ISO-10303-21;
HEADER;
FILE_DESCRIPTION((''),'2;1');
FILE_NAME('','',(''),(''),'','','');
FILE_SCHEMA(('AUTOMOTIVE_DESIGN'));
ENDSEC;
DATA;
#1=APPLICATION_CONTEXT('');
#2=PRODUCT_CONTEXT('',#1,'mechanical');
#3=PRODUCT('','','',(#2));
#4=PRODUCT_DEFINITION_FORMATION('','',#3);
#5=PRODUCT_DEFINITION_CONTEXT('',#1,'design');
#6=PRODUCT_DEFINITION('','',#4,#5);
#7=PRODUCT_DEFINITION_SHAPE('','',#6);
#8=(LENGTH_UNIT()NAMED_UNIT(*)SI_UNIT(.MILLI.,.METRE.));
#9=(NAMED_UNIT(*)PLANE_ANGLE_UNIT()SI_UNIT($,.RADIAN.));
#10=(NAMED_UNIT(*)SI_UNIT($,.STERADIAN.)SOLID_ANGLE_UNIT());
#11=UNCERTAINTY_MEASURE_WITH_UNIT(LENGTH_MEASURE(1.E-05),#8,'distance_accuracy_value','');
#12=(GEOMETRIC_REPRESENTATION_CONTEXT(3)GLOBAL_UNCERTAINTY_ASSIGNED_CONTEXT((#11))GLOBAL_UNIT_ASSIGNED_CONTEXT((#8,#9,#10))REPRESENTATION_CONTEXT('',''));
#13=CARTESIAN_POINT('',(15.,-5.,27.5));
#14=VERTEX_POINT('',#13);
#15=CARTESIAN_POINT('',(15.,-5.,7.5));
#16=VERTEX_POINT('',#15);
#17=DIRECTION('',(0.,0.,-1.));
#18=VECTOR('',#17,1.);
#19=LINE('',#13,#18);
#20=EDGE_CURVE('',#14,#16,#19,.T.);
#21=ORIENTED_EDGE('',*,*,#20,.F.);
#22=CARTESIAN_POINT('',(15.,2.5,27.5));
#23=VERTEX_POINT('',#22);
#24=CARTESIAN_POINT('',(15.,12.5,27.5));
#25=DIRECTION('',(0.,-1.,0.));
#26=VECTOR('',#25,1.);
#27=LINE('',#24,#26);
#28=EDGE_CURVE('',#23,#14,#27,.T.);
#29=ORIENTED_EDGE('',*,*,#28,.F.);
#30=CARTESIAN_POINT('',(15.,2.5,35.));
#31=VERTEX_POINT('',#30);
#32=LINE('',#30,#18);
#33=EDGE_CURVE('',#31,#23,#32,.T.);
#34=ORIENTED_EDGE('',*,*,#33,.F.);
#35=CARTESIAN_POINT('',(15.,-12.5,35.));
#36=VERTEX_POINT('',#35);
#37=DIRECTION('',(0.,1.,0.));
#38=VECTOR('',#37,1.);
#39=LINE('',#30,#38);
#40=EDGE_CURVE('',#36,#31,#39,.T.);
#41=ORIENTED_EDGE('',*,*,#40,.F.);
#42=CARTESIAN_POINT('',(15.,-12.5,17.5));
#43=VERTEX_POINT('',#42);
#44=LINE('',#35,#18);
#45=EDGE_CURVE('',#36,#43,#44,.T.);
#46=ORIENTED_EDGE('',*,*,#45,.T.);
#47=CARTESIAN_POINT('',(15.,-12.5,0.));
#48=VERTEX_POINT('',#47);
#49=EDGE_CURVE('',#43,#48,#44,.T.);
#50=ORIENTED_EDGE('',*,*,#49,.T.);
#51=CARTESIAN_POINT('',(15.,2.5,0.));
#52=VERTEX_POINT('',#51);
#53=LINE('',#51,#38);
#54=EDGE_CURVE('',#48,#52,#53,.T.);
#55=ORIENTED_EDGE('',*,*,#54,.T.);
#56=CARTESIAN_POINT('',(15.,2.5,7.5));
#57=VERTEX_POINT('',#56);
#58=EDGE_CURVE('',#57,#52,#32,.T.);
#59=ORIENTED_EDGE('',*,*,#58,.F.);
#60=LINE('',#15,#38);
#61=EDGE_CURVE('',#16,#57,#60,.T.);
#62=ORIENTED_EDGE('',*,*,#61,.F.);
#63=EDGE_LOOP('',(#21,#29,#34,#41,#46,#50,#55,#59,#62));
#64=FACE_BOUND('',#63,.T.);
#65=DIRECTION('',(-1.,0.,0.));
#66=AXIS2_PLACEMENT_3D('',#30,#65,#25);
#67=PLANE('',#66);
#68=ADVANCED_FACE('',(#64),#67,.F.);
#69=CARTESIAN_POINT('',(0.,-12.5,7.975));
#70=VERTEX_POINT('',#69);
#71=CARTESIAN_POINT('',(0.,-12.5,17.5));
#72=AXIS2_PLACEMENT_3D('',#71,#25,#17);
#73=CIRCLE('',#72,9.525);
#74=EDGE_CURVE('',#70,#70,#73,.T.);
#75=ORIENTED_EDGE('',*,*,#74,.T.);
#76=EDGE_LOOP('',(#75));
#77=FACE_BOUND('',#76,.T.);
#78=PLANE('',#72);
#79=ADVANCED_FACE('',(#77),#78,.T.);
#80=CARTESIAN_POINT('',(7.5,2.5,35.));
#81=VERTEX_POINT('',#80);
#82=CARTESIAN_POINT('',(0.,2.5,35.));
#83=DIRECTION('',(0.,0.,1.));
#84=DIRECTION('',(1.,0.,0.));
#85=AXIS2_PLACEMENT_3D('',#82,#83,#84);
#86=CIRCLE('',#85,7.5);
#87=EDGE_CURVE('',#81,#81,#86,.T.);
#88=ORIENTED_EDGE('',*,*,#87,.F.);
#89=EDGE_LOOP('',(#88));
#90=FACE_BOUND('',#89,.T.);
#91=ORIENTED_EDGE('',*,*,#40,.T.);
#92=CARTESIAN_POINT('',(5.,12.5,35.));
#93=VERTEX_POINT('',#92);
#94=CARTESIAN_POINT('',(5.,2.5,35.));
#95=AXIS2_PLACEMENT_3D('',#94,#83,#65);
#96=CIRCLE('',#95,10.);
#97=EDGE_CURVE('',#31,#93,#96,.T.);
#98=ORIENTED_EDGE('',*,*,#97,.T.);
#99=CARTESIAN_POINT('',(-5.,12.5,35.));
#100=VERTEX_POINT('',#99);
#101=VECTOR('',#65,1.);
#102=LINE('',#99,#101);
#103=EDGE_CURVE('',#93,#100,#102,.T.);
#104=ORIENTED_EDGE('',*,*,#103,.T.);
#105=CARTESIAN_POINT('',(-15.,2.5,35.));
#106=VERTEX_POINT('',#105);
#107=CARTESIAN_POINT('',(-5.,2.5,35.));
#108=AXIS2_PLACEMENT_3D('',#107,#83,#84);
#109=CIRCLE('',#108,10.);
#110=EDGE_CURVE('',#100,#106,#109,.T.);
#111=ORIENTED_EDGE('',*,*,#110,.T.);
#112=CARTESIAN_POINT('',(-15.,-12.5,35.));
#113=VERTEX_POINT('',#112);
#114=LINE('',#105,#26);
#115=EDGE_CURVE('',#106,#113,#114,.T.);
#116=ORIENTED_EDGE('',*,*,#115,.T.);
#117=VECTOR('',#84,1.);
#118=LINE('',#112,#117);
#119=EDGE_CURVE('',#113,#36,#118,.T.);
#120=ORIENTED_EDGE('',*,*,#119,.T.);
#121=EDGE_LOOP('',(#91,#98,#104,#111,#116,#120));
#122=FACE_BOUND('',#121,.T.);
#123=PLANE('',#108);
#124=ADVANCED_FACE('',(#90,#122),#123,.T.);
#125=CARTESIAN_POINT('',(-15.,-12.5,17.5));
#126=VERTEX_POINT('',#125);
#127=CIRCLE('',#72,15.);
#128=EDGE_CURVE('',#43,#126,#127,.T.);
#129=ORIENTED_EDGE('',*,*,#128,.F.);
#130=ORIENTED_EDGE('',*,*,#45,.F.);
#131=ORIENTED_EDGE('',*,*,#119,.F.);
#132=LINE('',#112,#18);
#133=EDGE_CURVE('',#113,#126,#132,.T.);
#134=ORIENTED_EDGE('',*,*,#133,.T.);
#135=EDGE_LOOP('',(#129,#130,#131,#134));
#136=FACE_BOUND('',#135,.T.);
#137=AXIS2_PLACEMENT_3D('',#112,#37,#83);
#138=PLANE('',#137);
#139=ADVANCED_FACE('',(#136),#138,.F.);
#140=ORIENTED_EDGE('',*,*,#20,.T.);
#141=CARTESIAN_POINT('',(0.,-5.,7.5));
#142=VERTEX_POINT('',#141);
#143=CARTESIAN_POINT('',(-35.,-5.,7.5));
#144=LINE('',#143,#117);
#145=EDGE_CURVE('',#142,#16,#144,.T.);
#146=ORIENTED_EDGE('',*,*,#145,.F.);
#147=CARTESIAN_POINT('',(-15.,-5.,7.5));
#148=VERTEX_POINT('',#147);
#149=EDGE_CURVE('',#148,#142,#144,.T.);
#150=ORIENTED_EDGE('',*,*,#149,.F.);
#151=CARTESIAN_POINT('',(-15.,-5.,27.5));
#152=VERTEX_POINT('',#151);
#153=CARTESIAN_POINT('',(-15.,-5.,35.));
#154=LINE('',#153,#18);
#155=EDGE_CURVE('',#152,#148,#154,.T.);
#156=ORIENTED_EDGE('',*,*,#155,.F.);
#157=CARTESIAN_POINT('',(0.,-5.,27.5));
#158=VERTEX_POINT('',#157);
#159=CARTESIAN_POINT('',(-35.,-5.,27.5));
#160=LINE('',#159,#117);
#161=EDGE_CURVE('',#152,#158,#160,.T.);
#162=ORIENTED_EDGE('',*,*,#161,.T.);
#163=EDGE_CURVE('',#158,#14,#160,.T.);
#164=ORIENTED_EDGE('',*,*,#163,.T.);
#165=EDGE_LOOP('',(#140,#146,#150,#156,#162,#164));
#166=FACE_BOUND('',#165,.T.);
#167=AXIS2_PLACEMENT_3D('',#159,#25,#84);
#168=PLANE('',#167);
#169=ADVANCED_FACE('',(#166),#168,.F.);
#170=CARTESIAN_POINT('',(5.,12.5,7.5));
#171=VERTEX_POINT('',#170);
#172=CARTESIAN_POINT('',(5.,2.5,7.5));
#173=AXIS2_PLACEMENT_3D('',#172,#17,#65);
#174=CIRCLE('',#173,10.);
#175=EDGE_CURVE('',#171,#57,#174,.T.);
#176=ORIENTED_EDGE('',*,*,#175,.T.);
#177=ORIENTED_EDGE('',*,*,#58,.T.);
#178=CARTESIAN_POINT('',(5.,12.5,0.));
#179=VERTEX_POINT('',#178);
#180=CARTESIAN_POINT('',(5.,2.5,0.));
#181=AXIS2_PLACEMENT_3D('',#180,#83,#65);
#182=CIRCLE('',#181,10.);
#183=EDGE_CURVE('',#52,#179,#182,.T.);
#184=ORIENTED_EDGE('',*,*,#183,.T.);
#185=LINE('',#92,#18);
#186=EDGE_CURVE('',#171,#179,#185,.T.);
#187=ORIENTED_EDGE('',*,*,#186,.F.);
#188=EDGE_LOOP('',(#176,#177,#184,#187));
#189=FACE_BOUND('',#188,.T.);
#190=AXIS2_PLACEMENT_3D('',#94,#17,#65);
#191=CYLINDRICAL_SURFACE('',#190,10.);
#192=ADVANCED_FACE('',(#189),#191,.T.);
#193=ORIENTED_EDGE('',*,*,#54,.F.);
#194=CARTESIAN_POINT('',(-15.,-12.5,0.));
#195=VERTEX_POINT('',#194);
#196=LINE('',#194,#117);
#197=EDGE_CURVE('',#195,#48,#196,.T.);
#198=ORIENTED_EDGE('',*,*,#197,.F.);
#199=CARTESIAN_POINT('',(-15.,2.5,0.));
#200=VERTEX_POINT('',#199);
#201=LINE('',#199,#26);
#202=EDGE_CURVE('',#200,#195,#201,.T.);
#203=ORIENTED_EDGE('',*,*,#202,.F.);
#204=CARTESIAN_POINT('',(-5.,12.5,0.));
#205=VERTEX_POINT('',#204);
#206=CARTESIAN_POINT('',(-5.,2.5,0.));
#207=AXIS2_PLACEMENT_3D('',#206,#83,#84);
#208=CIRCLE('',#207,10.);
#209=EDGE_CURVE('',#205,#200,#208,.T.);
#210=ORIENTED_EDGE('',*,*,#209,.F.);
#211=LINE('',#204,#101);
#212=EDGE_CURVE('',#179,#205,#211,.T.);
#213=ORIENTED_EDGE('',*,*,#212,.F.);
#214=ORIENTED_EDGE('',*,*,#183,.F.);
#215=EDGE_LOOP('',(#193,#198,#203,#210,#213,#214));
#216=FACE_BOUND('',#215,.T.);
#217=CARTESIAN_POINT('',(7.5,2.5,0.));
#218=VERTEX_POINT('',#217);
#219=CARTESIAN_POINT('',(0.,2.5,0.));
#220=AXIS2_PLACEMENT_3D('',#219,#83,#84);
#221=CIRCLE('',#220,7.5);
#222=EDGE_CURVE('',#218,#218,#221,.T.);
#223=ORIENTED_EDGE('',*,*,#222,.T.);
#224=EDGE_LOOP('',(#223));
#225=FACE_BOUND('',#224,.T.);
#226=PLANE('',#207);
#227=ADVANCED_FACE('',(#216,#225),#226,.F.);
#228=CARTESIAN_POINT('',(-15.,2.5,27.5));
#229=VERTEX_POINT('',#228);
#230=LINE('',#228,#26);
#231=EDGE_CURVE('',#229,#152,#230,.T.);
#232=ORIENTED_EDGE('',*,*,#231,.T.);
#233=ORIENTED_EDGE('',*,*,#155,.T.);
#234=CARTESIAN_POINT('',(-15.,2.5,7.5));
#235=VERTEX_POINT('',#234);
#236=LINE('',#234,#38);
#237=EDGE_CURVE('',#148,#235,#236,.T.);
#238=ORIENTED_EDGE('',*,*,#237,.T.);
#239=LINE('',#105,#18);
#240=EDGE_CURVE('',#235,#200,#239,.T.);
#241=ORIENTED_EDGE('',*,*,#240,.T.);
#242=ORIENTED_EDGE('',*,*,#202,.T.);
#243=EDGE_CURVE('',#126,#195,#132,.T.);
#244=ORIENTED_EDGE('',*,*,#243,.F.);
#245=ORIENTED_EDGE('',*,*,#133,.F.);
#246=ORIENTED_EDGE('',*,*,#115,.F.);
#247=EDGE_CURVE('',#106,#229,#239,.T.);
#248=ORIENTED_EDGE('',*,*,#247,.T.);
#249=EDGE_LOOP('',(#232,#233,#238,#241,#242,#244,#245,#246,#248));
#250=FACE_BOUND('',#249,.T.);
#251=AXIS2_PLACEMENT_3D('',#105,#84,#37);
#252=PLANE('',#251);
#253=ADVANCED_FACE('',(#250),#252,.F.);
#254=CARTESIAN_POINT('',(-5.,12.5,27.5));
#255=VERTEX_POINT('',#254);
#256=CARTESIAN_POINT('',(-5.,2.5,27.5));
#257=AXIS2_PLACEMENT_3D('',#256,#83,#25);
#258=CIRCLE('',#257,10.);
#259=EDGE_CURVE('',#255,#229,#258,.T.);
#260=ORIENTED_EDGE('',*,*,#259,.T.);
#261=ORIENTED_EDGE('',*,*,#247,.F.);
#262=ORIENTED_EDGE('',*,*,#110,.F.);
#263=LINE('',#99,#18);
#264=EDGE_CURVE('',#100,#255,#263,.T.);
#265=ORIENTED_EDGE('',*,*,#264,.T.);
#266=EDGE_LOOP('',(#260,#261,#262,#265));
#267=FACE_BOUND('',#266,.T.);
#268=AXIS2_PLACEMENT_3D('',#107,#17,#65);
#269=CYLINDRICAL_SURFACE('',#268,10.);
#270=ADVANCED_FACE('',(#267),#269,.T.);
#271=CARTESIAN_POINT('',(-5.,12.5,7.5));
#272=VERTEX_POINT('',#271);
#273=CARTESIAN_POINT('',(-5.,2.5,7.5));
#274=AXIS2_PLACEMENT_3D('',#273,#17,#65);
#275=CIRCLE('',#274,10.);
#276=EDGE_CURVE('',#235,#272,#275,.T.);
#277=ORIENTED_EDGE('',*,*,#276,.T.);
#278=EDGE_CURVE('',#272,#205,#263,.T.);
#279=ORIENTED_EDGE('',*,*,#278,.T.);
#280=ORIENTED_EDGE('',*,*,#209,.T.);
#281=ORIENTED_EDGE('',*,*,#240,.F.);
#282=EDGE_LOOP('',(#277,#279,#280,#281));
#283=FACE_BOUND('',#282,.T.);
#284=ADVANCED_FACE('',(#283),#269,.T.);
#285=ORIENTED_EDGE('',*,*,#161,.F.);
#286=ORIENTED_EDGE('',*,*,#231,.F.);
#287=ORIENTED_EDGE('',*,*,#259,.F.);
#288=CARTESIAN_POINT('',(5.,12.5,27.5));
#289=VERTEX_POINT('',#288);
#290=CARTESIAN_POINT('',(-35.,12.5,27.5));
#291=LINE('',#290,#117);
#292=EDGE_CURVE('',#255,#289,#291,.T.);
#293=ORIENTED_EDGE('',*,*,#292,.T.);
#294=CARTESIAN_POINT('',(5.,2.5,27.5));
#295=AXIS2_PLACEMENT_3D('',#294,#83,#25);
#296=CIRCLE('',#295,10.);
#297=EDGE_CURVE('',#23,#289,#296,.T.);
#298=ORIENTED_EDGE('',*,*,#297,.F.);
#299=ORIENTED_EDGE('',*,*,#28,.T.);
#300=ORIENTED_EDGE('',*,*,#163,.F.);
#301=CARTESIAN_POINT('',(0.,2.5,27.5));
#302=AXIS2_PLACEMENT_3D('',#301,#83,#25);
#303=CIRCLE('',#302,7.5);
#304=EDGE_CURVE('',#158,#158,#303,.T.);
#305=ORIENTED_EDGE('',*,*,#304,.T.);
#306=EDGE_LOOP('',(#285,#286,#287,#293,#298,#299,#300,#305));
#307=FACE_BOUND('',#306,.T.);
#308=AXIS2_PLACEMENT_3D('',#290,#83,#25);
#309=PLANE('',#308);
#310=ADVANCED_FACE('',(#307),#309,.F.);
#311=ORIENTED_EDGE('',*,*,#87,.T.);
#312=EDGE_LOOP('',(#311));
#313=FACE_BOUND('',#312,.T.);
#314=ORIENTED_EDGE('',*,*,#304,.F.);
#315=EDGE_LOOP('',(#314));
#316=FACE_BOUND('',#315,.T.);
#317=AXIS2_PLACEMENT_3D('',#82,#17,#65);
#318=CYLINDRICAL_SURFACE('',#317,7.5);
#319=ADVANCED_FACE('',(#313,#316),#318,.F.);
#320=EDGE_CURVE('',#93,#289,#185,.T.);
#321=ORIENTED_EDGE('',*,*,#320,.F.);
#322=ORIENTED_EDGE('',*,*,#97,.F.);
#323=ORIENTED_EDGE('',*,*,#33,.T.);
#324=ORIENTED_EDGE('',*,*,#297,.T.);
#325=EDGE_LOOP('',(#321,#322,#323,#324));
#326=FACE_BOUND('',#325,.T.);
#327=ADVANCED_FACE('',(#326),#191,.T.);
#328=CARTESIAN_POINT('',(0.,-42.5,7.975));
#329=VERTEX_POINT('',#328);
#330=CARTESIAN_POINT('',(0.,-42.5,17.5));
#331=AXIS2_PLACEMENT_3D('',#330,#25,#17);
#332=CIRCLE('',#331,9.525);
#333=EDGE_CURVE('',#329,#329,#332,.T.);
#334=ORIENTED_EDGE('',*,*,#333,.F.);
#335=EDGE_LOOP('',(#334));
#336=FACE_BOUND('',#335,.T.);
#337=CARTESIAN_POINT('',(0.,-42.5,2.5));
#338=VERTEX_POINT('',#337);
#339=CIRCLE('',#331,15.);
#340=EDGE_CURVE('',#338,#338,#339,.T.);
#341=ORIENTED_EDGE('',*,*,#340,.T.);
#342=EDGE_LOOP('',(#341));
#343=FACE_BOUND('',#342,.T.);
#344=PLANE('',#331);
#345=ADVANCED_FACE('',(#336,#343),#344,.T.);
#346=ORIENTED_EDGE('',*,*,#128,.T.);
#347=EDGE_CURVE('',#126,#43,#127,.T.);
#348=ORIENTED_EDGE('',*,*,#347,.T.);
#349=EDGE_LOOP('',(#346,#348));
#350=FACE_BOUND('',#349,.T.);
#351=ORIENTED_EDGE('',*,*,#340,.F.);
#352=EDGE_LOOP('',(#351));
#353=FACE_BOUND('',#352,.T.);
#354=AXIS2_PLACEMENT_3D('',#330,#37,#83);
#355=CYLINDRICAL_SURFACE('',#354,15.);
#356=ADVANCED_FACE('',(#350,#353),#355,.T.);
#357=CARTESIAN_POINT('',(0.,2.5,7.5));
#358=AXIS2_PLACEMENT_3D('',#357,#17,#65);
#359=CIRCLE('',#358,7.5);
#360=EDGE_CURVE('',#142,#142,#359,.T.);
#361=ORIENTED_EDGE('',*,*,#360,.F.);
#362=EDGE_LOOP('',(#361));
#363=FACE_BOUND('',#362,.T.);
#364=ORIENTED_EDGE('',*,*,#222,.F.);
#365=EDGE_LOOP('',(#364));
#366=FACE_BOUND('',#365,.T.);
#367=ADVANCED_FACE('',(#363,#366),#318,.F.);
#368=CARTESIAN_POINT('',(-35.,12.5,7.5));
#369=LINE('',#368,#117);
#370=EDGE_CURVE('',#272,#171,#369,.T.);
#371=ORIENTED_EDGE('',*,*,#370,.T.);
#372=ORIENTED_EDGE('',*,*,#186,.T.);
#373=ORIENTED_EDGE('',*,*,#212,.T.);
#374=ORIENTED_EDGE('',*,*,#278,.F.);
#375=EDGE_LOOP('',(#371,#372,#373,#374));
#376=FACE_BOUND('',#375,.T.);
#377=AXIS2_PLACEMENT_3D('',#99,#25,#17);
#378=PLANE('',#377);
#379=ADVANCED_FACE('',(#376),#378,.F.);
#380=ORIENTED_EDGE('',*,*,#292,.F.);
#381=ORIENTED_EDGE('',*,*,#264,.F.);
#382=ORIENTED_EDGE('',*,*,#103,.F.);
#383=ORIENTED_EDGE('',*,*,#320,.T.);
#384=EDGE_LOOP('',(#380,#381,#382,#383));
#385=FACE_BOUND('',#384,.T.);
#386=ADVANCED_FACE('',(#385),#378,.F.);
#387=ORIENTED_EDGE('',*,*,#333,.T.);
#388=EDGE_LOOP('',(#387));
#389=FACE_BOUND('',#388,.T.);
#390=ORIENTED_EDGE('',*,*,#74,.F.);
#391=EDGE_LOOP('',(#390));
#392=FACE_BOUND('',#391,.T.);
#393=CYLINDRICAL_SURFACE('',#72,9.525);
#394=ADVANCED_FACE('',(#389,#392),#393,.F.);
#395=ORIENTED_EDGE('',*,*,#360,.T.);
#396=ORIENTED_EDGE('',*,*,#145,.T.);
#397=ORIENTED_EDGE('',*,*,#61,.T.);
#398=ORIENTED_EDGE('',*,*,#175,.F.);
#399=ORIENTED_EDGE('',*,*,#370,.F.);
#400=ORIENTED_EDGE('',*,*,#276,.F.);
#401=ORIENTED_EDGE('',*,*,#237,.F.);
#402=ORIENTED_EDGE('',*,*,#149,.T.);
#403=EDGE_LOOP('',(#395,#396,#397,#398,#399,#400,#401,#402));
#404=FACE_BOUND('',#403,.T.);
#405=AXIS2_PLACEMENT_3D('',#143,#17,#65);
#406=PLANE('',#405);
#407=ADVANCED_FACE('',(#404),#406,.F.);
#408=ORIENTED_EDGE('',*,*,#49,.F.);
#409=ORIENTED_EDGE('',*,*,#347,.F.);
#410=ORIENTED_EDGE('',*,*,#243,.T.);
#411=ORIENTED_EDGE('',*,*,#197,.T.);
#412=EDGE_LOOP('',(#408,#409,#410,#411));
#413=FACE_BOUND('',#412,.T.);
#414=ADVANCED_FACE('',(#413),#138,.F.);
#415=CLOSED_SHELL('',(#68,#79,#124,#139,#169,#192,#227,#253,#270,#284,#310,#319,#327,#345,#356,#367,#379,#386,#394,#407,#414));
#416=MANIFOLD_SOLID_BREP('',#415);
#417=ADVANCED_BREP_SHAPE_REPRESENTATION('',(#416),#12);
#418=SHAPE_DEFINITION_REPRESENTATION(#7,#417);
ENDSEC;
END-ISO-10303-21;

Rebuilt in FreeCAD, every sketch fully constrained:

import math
import FreeCAD as App
import Part
import Sketcher
from FreeCAD import Vector
Q = App.Units.Quantity


def add_polygon(sketch, points):
    """Adds a closed chain of lines whose ends are joined by coincident constraints."""
    first, n = sketch.GeometryCount, len(points)
    for a, b in zip(points, points[1:] + points[:1]):
        sketch.addGeometry(Part.LineSegment(App.Vector(*a, 0), App.Vector(*b, 0)), False)
    for i in range(n):
        sketch.addConstraint(Sketcher.Constraint("Coincident", first + i, 2, first + (i + 1) % n, 1))

doc = App.newDocument("Part")
params = doc.addObject("Spreadsheet::Sheet", "Params")
for row, (alias, value) in enumerate([
    ("sketch1_diameter", "15 mm"),
    ("sketch1_radius", "10 mm"),
    ("sketch1_width", "10 mm"),
    ("sketch1_height", "15 mm"),
    ("pad1_length", "35 mm"),
    ("sketch2_height", "20 mm"),
    ("sketch2_width", "17.5 mm"),
    ("pocket1_length", "50 mm"),
    ("sketch3_diameter", "30 mm"),
    ("pad2_length", "30 mm"),
    ("sketch4_diameter", "19.05 mm"),
    ("pocket2_length", "30 mm"),
], start=1):
    params.set(f"A{row}", alias)
    params.set(f"B{row}", "=" + value)
    params.setAlias(f"B{row}", alias)

body = doc.addObject("PartDesign::Body", "Body")

# Sketch on XY plane
sketch1 = body.newObject("Sketcher::SketchObject", "Sketch")
sketch1.AttachmentSupport = (doc.getObject("XY_Plane"), [""])
sketch1.MapMode = "FlatFace"
sketch1.addGeometry([
    Part.LineSegment(Vector(5, 12, 0), Vector(-5, 12, 0)),  # 0
    Part.ArcOfCircle(Part.Circle(Vector(-5, 2, 0), Vector(0, 0, 1), 10), math.radians(90), math.radians(180)),  # 1
    Part.LineSegment(Vector(-15, 2, 0), Vector(-15, -12, 0)),  # 2
    Part.LineSegment(Vector(-15, -12, 0), Vector(15, -12, 0)),  # 3
    Part.LineSegment(Vector(15, -12, 0), Vector(15, 2, 0)),  # 4
    Part.ArcOfCircle(Part.Circle(Vector(5, 2, 0), Vector(0, 0, 1), 10), math.radians(0), math.radians(90)),  # 5
    Part.Circle(Vector(0, 2, 0), Vector(0, 0, 1), 8),  # 6
], False)
sketch1.addConstraint([
    Sketcher.Constraint("Tangent", 0, 2, 1, 1),
    Sketcher.Constraint("Tangent", 1, 2, 2, 1),
    Sketcher.Constraint("Coincident", 2, 2, 3, 1),
    Sketcher.Constraint("Coincident", 3, 2, 4, 1),
    Sketcher.Constraint("Tangent", 4, 2, 5, 1),
    Sketcher.Constraint("Tangent", 5, 2, 0, 1),
    Sketcher.Constraint("Horizontal", 0),
    Sketcher.Constraint("Vertical", 2),
    Sketcher.Constraint("Horizontal", 3),
    Sketcher.Constraint("Vertical", 4),
    Sketcher.Constraint("Equal", 1, 5),
    Sketcher.Constraint("PointOnObject", 6, 3, -2),
    Sketcher.Constraint("Horizontal", 5, 3, 6, 3),
    Sketcher.Constraint("Diameter", 6, Q("15 mm")),
    Sketcher.Constraint("Radius", 1, Q("10 mm")),
    Sketcher.Constraint("DistanceX", 0, 2, 0, 1, Q("10 mm")),
    Sketcher.Constraint("DistanceY", 2, 2, 2, 1, Q("15 mm")),
    Sketcher.Constraint("DistanceX", 1, 3, -1, 1, Q("5 mm")),
    Sketcher.Constraint("DistanceY", -1, 1, 1, 3, Q("2.5 mm")),
])
sketch1.setExpression("Constraints[13]", "Params.sketch1_diameter")
sketch1.setExpression("Constraints[14]", "Params.sketch1_radius")
sketch1.setExpression("Constraints[15]", "Params.sketch1_width")
sketch1.setExpression("Constraints[16]", "Params.sketch1_height")
pad1 = body.newObject("PartDesign::Pad", "Pad")
pad1.Profile = sketch1
pad1.setExpression("Length", "Params.pad1_length")

# Sketch on YZ plane
sketch2 = body.newObject("Sketcher::SketchObject", "Sketch001")
sketch2.AttachmentSupport = (doc.getObject("YZ_Plane"), [""])
sketch2.MapMode = "FlatFace"
sketch2.AttachmentOffset = App.Placement(Vector(0, 0, 15), App.Rotation())
add_polygon(sketch2, [(12, 28), (-5, 28), (-5, 8), (12, 8)])  # lines 0-3
sketch2.addConstraint([
    Sketcher.Constraint("Horizontal", 0),
    Sketcher.Constraint("Vertical", 1),
    Sketcher.Constraint("Horizontal", 2),
    Sketcher.Constraint("Vertical", 3),
    Sketcher.Constraint("DistanceY", 1, 2, 1, 1, Q("20 mm")),
    Sketcher.Constraint("DistanceX", 0, 2, 0, 1, Q("17.5 mm")),
    Sketcher.Constraint("DistanceX", 0, 2, -1, 1, Q("5 mm")),
    Sketcher.Constraint("DistanceY", -1, 1, 0, 2, Q("27.5 mm")),
])
sketch2.setExpression("Constraints[8]", "Params.sketch2_height")
sketch2.setExpression("Constraints[9]", "Params.sketch2_width")
pocket1 = body.newObject("PartDesign::Pocket", "Pocket")
pocket1.Profile = sketch2
pocket1.setExpression("Length", "Params.pocket1_length")

# Sketch on XZ plane
sketch3 = body.newObject("Sketcher::SketchObject", "Sketch002")
sketch3.AttachmentSupport = (doc.getObject("XZ_Plane"), [""])
sketch3.MapMode = "FlatFace"
sketch3.AttachmentOffset = App.Placement(Vector(0, 0, 12.5), App.Rotation())
sketch3.addGeometry(Part.Circle(Vector(0, 18, 0), Vector(0, 0, 1), 15), False)
sketch3.addConstraint([
    Sketcher.Constraint("PointOnObject", 0, 3, -2),
    Sketcher.Constraint("Diameter", 0, Q("30 mm")),
    Sketcher.Constraint("DistanceY", -1, 1, 0, 3, Q("17.5 mm")),
])
sketch3.setExpression("Constraints[1]", "Params.sketch3_diameter")
pad2 = body.newObject("PartDesign::Pad", "Pad001")
pad2.Profile = sketch3
pad2.setExpression("Length", "Params.pad2_length")

# Sketch on XZ plane
sketch4 = body.newObject("Sketcher::SketchObject", "Sketch003")
sketch4.AttachmentSupport = (doc.getObject("XZ_Plane"), [""])
sketch4.MapMode = "FlatFace"
sketch4.AttachmentOffset = App.Placement(Vector(0, 0, 42.5), App.Rotation())
sketch4.addGeometry(Part.Circle(Vector(0, 18, 0), Vector(0, 0, 1), 10), False)
sketch4.addConstraint([
    Sketcher.Constraint("PointOnObject", 0, 3, -2),
    Sketcher.Constraint("Diameter", 0, Q("19.05 mm")),
    Sketcher.Constraint("DistanceY", -1, 1, 0, 3, Q("17.5 mm")),
])
sketch4.setExpression("Constraints[1]", "Params.sketch4_diameter")
pocket2 = body.newObject("PartDesign::Pocket", "Pocket001")
pocket2.Profile = sketch4
pocket2.setExpression("Length", "Params.pocket2_length")

doc.recompute()
